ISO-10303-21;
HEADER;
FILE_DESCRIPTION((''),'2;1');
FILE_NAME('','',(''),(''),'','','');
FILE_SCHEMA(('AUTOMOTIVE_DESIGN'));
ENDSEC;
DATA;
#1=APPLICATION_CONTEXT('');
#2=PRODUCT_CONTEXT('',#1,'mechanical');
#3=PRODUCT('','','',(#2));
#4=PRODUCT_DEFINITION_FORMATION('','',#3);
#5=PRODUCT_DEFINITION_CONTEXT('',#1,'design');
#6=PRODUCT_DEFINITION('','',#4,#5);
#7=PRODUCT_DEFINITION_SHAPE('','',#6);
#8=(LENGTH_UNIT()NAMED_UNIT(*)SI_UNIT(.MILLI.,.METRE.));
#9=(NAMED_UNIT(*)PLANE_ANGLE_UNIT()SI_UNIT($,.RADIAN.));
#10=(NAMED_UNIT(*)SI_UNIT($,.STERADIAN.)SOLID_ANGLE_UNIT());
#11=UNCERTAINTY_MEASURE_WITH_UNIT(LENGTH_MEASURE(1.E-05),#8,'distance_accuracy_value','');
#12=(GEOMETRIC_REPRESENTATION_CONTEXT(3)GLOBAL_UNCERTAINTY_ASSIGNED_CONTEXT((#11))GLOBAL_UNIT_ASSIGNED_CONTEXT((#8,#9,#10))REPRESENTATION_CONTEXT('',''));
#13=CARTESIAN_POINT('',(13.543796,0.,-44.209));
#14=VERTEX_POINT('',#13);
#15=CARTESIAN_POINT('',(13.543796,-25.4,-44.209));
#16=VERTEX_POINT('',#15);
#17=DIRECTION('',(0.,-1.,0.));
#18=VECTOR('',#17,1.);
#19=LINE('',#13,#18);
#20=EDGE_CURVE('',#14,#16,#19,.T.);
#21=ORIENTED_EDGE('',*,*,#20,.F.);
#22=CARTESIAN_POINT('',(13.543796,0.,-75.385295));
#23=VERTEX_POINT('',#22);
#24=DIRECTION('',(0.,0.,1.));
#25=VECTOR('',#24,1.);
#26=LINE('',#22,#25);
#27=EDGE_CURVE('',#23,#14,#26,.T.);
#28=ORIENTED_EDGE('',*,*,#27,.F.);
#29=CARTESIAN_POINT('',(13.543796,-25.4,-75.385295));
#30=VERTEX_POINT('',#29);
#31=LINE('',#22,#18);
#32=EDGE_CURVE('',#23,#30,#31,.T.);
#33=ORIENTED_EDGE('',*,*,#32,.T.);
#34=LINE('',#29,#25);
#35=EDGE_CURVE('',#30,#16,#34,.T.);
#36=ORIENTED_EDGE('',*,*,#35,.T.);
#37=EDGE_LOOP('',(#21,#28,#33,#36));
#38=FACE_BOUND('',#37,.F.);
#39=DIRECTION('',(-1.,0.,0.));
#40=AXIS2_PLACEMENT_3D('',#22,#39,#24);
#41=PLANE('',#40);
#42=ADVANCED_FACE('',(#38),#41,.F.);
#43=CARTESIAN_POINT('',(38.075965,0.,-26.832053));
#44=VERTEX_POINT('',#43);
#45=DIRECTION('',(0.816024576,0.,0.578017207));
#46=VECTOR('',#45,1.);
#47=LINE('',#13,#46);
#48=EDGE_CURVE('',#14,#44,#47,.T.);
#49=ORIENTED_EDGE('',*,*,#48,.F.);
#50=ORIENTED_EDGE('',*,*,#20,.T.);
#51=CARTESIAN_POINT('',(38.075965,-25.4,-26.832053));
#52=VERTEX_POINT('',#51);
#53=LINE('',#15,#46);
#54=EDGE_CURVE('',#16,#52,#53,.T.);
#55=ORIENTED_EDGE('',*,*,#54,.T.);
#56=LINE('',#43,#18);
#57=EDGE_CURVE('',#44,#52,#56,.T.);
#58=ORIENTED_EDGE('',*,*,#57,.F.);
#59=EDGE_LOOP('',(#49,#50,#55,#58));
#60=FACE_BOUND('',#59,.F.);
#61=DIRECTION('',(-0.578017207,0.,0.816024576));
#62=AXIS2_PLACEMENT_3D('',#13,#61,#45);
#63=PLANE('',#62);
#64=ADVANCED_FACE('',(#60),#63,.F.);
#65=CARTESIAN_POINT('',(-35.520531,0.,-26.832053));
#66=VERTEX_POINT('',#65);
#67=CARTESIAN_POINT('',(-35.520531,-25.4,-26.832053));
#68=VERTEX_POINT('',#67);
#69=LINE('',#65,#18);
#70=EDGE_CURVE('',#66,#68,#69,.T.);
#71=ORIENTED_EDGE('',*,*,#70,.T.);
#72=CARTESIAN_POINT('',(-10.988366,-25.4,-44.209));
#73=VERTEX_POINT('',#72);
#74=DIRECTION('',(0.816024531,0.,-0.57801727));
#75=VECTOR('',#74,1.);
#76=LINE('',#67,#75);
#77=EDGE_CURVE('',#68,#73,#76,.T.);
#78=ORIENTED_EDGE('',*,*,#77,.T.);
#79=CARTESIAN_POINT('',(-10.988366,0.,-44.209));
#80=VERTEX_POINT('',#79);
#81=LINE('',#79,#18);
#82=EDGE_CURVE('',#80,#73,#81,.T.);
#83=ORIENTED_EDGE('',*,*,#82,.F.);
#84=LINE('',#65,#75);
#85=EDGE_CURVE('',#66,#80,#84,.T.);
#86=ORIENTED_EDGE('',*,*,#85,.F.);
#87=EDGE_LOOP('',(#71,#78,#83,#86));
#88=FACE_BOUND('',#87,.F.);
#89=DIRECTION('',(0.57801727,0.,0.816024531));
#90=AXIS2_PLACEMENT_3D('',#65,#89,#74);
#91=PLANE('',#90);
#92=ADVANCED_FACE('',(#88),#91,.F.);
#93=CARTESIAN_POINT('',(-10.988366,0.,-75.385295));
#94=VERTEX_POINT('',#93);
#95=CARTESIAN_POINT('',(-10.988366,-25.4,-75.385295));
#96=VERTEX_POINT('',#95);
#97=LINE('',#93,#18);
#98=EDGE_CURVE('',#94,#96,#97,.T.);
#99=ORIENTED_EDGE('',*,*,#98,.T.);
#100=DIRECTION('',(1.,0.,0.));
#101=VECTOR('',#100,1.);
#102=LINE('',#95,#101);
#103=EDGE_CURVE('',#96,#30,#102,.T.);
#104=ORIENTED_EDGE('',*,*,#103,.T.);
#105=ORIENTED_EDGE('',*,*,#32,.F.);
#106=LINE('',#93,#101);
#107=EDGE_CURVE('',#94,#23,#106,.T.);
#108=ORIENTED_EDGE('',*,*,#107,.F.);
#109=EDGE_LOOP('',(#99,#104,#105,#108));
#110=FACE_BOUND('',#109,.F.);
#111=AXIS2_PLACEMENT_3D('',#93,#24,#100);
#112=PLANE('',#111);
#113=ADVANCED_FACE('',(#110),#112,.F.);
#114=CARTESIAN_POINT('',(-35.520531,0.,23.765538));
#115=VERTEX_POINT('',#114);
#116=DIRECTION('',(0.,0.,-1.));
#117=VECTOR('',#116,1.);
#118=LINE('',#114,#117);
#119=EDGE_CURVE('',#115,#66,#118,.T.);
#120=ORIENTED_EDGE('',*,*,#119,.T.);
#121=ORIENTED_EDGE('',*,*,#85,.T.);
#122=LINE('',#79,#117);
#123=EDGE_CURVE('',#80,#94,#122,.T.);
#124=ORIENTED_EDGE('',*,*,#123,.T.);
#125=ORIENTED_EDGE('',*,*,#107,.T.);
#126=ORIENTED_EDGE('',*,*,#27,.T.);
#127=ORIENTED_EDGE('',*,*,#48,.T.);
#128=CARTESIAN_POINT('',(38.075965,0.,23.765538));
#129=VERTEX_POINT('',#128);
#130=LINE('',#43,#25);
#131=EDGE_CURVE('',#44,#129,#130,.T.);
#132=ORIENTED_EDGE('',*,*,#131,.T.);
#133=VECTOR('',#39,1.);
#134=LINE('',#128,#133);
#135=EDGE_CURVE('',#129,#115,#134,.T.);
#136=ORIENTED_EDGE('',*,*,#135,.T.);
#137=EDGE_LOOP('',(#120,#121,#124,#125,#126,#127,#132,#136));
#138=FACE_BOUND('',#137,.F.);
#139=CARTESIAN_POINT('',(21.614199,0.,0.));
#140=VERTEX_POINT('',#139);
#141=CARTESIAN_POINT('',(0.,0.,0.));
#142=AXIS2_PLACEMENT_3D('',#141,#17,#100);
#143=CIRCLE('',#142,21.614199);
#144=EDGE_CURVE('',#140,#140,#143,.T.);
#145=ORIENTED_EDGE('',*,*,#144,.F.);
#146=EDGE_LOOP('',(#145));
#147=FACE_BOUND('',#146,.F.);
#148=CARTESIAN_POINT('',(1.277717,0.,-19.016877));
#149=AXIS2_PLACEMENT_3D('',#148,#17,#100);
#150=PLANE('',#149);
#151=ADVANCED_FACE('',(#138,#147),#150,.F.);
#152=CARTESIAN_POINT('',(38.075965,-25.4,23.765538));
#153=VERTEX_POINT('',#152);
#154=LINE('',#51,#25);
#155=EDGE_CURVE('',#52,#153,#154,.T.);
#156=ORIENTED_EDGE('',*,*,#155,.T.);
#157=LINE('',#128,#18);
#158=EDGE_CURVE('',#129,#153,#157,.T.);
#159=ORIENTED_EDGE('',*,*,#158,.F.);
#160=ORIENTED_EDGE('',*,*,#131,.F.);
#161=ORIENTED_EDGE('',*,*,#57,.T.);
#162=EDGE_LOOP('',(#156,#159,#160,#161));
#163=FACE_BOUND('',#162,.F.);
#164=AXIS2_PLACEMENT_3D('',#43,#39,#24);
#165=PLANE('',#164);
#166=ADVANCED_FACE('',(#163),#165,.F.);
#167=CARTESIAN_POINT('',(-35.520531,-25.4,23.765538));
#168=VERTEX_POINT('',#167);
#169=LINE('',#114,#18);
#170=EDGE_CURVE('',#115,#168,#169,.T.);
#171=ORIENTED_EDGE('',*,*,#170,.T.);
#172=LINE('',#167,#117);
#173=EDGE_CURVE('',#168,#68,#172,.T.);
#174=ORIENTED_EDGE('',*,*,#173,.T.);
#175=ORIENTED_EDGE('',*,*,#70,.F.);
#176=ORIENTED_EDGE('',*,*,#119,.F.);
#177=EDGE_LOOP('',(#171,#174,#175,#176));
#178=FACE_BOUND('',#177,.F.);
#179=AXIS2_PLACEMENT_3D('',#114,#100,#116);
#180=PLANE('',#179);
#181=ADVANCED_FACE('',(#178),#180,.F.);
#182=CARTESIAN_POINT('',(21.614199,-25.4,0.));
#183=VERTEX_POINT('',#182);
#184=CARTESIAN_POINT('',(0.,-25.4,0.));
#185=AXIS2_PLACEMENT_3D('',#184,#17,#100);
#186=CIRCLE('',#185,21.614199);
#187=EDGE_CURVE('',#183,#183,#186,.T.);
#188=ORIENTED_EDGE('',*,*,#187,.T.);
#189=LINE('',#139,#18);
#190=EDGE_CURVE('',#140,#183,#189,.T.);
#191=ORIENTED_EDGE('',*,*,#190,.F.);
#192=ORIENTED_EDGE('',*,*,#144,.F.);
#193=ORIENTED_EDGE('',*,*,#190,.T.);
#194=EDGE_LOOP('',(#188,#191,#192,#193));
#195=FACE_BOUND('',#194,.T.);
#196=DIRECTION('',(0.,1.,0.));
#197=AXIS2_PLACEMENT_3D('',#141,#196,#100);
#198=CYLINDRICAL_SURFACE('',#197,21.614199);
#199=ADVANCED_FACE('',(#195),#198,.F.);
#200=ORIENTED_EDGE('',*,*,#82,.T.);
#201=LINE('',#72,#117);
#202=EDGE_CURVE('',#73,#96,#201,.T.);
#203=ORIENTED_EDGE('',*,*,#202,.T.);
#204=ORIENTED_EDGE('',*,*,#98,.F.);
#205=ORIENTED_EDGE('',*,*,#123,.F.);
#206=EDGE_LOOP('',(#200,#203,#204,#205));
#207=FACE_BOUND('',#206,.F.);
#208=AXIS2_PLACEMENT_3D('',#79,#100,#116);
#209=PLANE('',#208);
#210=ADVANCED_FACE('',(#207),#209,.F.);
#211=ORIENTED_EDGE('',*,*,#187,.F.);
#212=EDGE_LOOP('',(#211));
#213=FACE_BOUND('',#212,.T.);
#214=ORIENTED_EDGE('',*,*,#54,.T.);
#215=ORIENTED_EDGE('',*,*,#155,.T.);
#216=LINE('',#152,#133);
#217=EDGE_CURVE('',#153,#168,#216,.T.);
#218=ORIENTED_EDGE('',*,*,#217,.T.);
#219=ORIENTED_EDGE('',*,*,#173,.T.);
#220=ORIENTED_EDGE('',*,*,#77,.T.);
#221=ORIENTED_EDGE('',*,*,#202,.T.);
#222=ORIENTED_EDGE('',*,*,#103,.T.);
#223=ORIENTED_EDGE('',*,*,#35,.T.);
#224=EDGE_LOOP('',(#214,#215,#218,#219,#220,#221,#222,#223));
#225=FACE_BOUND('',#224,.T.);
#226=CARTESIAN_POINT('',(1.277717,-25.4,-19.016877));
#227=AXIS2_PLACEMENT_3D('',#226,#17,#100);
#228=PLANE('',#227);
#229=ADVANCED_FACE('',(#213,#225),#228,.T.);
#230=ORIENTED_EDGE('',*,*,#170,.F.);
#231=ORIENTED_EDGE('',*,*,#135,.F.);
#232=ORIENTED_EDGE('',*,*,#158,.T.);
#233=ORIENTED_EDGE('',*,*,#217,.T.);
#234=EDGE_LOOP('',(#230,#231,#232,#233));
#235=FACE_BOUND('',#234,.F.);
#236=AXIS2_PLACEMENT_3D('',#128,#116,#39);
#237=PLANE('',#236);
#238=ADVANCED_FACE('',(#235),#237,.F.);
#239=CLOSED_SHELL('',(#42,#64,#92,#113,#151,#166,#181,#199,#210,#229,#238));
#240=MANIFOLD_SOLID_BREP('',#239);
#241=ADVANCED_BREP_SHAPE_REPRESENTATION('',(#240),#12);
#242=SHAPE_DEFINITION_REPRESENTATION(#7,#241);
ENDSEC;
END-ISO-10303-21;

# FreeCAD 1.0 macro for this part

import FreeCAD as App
import Part
import Sketcher

V = App.Vector
Q = App.Units.Quantity


def add_polygon(sketch, points):
    """Adds a closed chain of lines whose ends are joined by coincident constraints."""
    first, n = sketch.GeometryCount, len(points)
    for a, b in zip(points, points[1:] + points[:1]):
        sketch.addGeometry(Part.LineSegment(App.Vector(*a, 0), App.Vector(*b, 0)), False)
    for i in range(n):
        sketch.addConstraint(Sketcher.Constraint("Coincident", first + i, 2, first + (i + 1) % n, 1))

doc = App.newDocument("Part")
body = doc.addObject("PartDesign::Body", "Body")

# Sketch on XZ plane
sketch1 = body.newObject("Sketcher::SketchObject", "Sketch")
sketch1.AttachmentSupport = (doc.getObject("XZ_Plane"), [""])
sketch1.MapMode = "FlatFace"
add_polygon(sketch1, [(-36, 24), (-36, -27), (-11, -44), (-11, -75), (14, -75), (14, -44), (38, -27), (38, 24)])  # lines 0-7
sketch1.addGeometry(Part.Circle(V(0, 0, 0), V(0, 0, 1), 22), False)  # 8
sketch1.addConstraint([
    Sketcher.Constraint("Vertical", 0),
    Sketcher.Constraint("Vertical", 2),
    Sketcher.Constraint("Horizontal", 3),
    Sketcher.Constraint("Vertical", 4),
    Sketcher.Constraint("Vertical", 6),
    Sketcher.Constraint("Horizontal", 7),
    Sketcher.Constraint("Coincident", 8, 3, -1, 1),
    Sketcher.Constraint("Horizontal", 1, 2, 4, 2),
    Sketcher.Constraint("Horizontal", 0, 2, 5, 2),
    Sketcher.Constraint("DistanceX", 7, 2, 7, 1, Q("2.8974998 in")),
    Sketcher.Constraint("Diameter", 8, 43.228398),
    Sketcher.Constraint("DistanceX", 3, 1, 3, 2, 24.532162),
    Sketcher.Constraint("DistanceY", 0, 2, 0, 1, 50.597591),
    Sketcher.Constraint("DistanceY", 1, 2, -1, 1, 44.209),
    Sketcher.Constraint("DistanceY", 2, 2, 2, 1, 31.176295),
    Sketcher.Constraint("DistanceX", 0, 2, -1, 1, 35.520531),
    Sketcher.Constraint("DistanceY", 2, 2, 0, 2, 48.553242),
    Sketcher.Constraint("DistanceX", 4, 2, 5, 2, 24.532169),
])
pad1 = body.newObject("PartDesign::Pad", "Pad")
pad1.Profile = sketch1
pad1.Length = Q("1 in")

doc.recompute()
